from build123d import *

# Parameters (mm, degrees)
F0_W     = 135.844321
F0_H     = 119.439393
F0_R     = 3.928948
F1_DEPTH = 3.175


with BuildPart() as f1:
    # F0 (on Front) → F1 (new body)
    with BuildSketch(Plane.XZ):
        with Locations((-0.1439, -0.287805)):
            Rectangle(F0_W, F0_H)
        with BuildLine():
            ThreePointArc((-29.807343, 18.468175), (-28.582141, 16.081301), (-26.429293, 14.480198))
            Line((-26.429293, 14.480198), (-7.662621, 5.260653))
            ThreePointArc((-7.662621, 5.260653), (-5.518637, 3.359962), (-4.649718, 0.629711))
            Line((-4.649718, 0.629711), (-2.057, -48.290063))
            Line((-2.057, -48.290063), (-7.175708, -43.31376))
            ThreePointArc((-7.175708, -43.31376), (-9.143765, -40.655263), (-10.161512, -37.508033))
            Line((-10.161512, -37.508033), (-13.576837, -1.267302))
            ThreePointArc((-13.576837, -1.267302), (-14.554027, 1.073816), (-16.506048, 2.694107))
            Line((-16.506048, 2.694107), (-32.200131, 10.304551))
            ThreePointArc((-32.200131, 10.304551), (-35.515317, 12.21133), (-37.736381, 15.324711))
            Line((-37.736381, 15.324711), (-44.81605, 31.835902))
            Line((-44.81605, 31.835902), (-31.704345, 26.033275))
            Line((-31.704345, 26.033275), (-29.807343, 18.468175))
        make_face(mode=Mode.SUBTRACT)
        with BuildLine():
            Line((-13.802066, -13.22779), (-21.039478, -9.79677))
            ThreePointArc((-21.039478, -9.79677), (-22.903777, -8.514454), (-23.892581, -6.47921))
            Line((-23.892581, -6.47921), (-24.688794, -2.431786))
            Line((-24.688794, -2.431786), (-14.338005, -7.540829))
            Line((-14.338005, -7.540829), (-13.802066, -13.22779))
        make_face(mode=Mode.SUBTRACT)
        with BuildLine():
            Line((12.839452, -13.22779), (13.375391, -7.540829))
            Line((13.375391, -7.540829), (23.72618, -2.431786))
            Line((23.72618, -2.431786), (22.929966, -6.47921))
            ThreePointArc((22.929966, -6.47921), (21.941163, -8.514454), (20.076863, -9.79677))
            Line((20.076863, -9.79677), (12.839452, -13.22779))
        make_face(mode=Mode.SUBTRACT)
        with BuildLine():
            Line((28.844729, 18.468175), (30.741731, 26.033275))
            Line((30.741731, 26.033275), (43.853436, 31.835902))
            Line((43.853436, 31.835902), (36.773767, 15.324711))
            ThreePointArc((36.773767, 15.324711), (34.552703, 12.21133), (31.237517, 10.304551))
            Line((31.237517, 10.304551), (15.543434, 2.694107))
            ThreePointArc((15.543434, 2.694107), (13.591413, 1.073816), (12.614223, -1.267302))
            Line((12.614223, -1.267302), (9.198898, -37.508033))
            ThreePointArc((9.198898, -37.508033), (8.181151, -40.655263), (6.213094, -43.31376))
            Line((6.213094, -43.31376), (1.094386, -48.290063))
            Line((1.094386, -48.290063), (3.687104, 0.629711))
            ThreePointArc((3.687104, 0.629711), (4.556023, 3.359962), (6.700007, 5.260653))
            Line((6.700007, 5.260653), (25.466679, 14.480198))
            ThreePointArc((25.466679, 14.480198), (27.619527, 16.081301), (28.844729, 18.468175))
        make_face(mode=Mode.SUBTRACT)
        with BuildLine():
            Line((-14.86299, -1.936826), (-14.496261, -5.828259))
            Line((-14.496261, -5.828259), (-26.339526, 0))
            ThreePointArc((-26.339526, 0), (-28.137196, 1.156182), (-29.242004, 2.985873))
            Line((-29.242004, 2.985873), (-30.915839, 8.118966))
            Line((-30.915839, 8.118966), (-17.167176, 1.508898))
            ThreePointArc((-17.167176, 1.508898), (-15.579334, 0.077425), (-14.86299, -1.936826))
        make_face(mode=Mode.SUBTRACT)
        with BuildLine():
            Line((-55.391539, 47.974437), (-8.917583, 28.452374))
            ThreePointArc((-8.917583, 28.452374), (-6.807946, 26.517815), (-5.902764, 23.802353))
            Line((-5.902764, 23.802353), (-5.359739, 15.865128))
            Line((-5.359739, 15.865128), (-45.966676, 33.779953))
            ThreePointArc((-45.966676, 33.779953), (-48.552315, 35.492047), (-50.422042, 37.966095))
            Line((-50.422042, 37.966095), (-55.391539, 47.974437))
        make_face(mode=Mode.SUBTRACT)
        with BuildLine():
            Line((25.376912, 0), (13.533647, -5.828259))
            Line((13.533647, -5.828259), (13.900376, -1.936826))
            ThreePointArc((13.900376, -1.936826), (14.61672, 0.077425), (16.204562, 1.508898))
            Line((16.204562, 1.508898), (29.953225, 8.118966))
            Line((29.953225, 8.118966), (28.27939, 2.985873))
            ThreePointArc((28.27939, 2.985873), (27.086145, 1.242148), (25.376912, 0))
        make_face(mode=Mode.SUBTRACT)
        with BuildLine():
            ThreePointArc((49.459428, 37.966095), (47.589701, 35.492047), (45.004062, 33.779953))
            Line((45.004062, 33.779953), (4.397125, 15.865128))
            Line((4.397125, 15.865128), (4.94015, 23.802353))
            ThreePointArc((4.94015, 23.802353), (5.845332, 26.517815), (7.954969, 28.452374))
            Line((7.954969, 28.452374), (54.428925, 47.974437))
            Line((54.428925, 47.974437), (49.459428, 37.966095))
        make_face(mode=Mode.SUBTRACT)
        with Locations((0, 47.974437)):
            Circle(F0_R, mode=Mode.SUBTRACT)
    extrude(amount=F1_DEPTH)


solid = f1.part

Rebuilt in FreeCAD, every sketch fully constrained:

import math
import FreeCAD as App
import Part
import Sketcher

V = App.Vector
Q = App.Units.Quantity


def add_polygon(sketch, points):
    """Adds a closed chain of lines whose ends are joined by coincident constraints."""
    first, n = sketch.GeometryCount, len(points)
    for a, b in zip(points, points[1:] + points[:1]):
        sketch.addGeometry(Part.LineSegment(App.Vector(*a, 0), App.Vector(*b, 0)), False)
    for i in range(n):
        sketch.addConstraint(Sketcher.Constraint("Coincident", first + i, 2, first + (i + 1) % n, 1))

doc = App.newDocument("Part")
body = doc.addObject("PartDesign::Body", "Body")

sketch1 = body.newObject("Sketcher::SketchObject", "Sketch")
sketch1.AttachmentSupport = (doc.getObject("XZ_Plane"), [""])
sketch1.MapMode = "FlatFace"
add_polygon(sketch1, [(-68.066061, 59.431891), (-68.066061, -60.007501), (67.778261, -60.007501), (67.778261, 59.431891)])
sketch1.addGeometry(Part.LineSegment(V(-31.704345, 26.033275, 0), V(-29.807343, 18.468175, 0)), False)
sketch1.addGeometry(Part.ArcOfCircle(Part.Circle(V(-24.064124, 19.908326, 0), V(0, 0, 1), 5.921031), math.radians(-165.922951), math.radians(-113.543944)), False)
sketch1.addGeometry(Part.LineSegment(V(-26.429293, 14.480198, 0), V(-7.662621, 5.260653, 0)), False)
sketch1.addGeometry(Part.ArcOfCircle(Part.Circle(V(-10.042214, 0.416911, 0), V(0, 0, 1), 5.396693), math.radians(2.259846), math.radians(63.836421)), False)
sketch1.addGeometry(Part.LineSegment(V(-4.649718, 0.629711, 0), V(-2.057, -48.290063, 0)), False)
sketch1.addGeometry(Part.LineSegment(V(-2.057, -48.290063, 0), V(-7.175708, -43.31376, 0)), False)
sketch1.addGeometry(Part.ArcOfCircle(Part.Circle(V(-0.038966, -35.972791, 0), V(0, 0, 1), 10.238306), math.radians(-171.375928), math.radians(-134.191825)), False)
sketch1.addGeometry(Part.LineSegment(V(-10.161512, -37.508033, 0), V(-13.576837, -1.267302, 0)), False)
sketch1.addGeometry(Part.ArcOfCircle(Part.Circle(V(-18.822215, -2.082239, 0), V(0, 0, 1), 5.308306), math.radians(8.831036), math.radians(64.130122)), False)
sketch1.addGeometry(Part.LineSegment(V(-16.506048, 2.694107, 0), V(-32.200131, 10.304551, 0)), False)
sketch1.addGeometry(Part.ArcOfCircle(Part.Circle(V(-29.483288, 18.863473, 0), V(0, 0, 1), 8.979777), math.radians(-156.791309), math.radians(-107.610907)), False)
sketch1.addGeometry(Part.LineSegment(V(-37.736381, 15.324711, 0), V(-44.81605, 31.835902, 0)), False)
sketch1.addGeometry(Part.LineSegment(V(-44.81605, 31.835902, 0), V(-31.704345, 26.033275, 0)), False)
sketch1.addGeometry(Part.LineSegment(V(-14.338005, -7.540829, 0), V(-13.802066, -13.22779, 0)), False)
sketch1.addGeometry(Part.LineSegment(V(-13.802066, -13.22779, 0), V(-21.039478, -9.79677, 0)), False)
sketch1.addGeometry(Part.ArcOfCircle(Part.Circle(V(-19.542055, -5.623371, 0), V(0, 0, 1), 4.433908), math.radians(-168.870835), math.radians(-109.738075)), False)
sketch1.addGeometry(Part.LineSegment(V(-23.892581, -6.47921, 0), V(-24.688794, -2.431786, 0)), False)
sketch1.addGeometry(Part.LineSegment(V(-24.688794, -2.431786, 0), V(-14.338005, -7.540829, 0)), False)
sketch1.addGeometry(Part.ArcOfCircle(Part.Circle(V(-19.20313, -2.345839, 0), V(0, 0, 1), 4.35937), math.radians(5.383635), math.radians(62.158356)), False)
sketch1.addGeometry(Part.LineSegment(V(-14.86299, -1.936826, 0), V(-14.496261, -5.828259, 0)), False)
sketch1.addGeometry(Part.LineSegment(V(-14.496261, -5.828259, 0), V(-26.339526, 0, 0)), False)
sketch1.addGeometry(Part.ArcOfCircle(Part.Circle(V(-24.747089, 4.451603, 0), V(0, 0, 1), 4.727856), math.radians(-161.939564), math.radians(-109.683255)), False)
sketch1.addGeometry(Part.LineSegment(V(-29.242004, 2.985873, 0), V(-30.915839, 8.118966, 0)), False)
sketch1.addGeometry(Part.LineSegment(V(-30.915839, 8.118966, 0), V(-17.167176, 1.508898, 0)), False)
sketch1.addGeometry(Part.LineSegment(V(20.076863, -9.79677, 0), V(12.839452, -13.22779, 0)), False)
sketch1.addGeometry(Part.LineSegment(V(12.839452, -13.22779, 0), V(13.375391, -7.540829, 0)), False)
sketch1.addGeometry(Part.LineSegment(V(13.375391, -7.540829, 0), V(23.72618, -2.431786, 0)), False)
sketch1.addGeometry(Part.LineSegment(V(23.72618, -2.431786, 0), V(22.929966, -6.47921, 0)), False)
sketch1.addGeometry(Part.ArcOfCircle(Part.Circle(V(18.579444, -5.623375, 0), V(0, 0, 1), 4.433903), math.radians(-70.261962), math.radians(-11.129128)), False)
sketch1.addGeometry(Part.ArcOfCircle(Part.Circle(V(23.10151, 19.908326, 0), V(0, 0, 1), 5.921031), math.radians(-66.456056), math.radians(-14.077049)), False)
sketch1.addGeometry(Part.LineSegment(V(28.844729, 18.468175, 0), V(30.741731, 26.033275, 0)), False)
sketch1.addGeometry(Part.LineSegment(V(30.741731, 26.033275, 0), V(43.853436, 31.835902, 0)), False)
sketch1.addGeometry(Part.LineSegment(V(43.853436, 31.835902, 0), V(36.773767, 15.324711, 0)), False)
sketch1.addGeometry(Part.ArcOfCircle(Part.Circle(V(28.520674, 18.863473, 0), V(0, 0, 1), 8.979777), math.radians(-72.389093), math.radians(-23.208691)), False)
sketch1.addGeometry(Part.LineSegment(V(31.237517, 10.304551, 0), V(15.543434, 2.694107, 0)), False)
sketch1.addGeometry(Part.ArcOfCircle(Part.Circle(V(17.859601, -2.082239, 0), V(0, 0, 1), 5.308306), math.radians(115.869878), math.radians(171.168964)), False)
sketch1.addGeometry(Part.LineSegment(V(12.614223, -1.267302, 0), V(9.198898, -37.508033, 0)), False)
sketch1.addGeometry(Part.ArcOfCircle(Part.Circle(V(-0.923648, -35.972791, 0), V(0, 0, 1), 10.238306), math.radians(-45.808175), math.radians(-8.624072)), False)
sketch1.addGeometry(Part.LineSegment(V(6.213094, -43.31376, 0), V(1.094386, -48.290063, 0)), False)
sketch1.addGeometry(Part.LineSegment(V(1.094386, -48.290063, 0), V(3.687104, 0.629711, 0)), False)
sketch1.addGeometry(Part.ArcOfCircle(Part.Circle(V(9.0796, 0.416911, 0), V(0, 0, 1), 5.396693), math.radians(116.163579), math.radians(177.740154)), False)
sketch1.addGeometry(Part.LineSegment(V(6.700007, 5.260653, 0), V(25.466679, 14.480198, 0)), False)
sketch1.addGeometry(Part.ArcOfCircle(Part.Circle(V(22.637555, 5.56649, 0), V(0, 0, 1), 6.204022), math.radians(-63.797475), math.radians(-24.579706)), False)
sketch1.addGeometry(Part.LineSegment(V(25.376912, 0, 0), V(13.533647, -5.828259, 0)), False)
sketch1.addGeometry(Part.LineSegment(V(13.533647, -5.828259, 0), V(13.900376, -1.936826, 0)), False)
sketch1.addGeometry(Part.ArcOfCircle(Part.Circle(V(18.240516, -2.345839, 0), V(0, 0, 1), 4.35937), math.radians(117.841644), math.radians(174.616365)), False)
sketch1.addGeometry(Part.LineSegment(V(16.204562, 1.508898, 0), V(29.953225, 8.118966, 0)), False)
sketch1.addGeometry(Part.LineSegment(V(29.953225, 8.118966, 0), V(28.27939, 2.985873, 0)), False)
sketch1.addGeometry(Part.LineSegment(V(-50.422042, 37.966095, 0), V(-55.391539, 47.974437, 0)), False)
sketch1.addGeometry(Part.LineSegment(V(-55.391539, 47.974437, 0), V(-8.917583, 28.452374, 0)), False)
sketch1.addGeometry(Part.ArcOfCircle(Part.Circle(V(-11.597125, 23.412773, 0), V(0, 0, 1), 5.707672), math.radians(3.913793), math.radians(62.00054)), False)
sketch1.addGeometry(Part.LineSegment(V(-5.902764, 23.802353, 0), V(-5.359739, 15.865128, 0)), False)
sketch1.addGeometry(Part.LineSegment(V(-5.359739, 15.865128, 0), V(-45.966676, 33.779953, 0)), False)
sketch1.addGeometry(Part.ArcOfCircle(Part.Circle(V(-42.253942, 42.195487, 0), V(0, 0, 1), 9.198131), math.radians(-152.625153), math.radians(-113.805931)), False)
sketch1.addGeometry(Part.Circle(V(0, 47.974437, 0), V(0, 0, 1), 3.928948), False)
sketch1.addGeometry(Part.LineSegment(V(54.428925, 47.974437, 0), V(49.459428, 37.966095, 0)), False)
sketch1.addGeometry(Part.ArcOfCircle(Part.Circle(V(41.291328, 42.195487, 0), V(0, 0, 1), 9.198131), math.radians(-66.194069), math.radians(-27.374847)), False)
sketch1.addGeometry(Part.LineSegment(V(45.004062, 33.779953, 0), V(4.397125, 15.865128, 0)), False)
sketch1.addGeometry(Part.LineSegment(V(4.397125, 15.865128, 0), V(4.94015, 23.802353, 0)), False)
sketch1.addGeometry(Part.ArcOfCircle(Part.Circle(V(10.634511, 23.412773, 0), V(0, 0, 1), 5.707672), math.radians(117.99946), math.radians(176.086207)), False)
sketch1.addGeometry(Part.LineSegment(V(7.954969, 28.452374, 0), V(54.428925, 47.974437, 0)), False)
sketch1.addConstraint([
    Sketcher.Constraint("Coincident", 4, 2, 5, 1),
    Sketcher.Constraint("Coincident", 5, 2, 6, 1),
    Sketcher.Constraint("Coincident", 6, 2, 7, 2),
    Sketcher.Constraint("Coincident", 7, 1, 8, 1),
    Sketcher.Constraint("Coincident", 8, 2, 9, 1),
    Sketcher.Constraint("Coincident", 9, 2, 10, 2),
    Sketcher.Constraint("Coincident", 10, 1, 11, 1),
    Sketcher.Constraint("Coincident", 11, 2, 12, 1),
    Sketcher.Constraint("Coincident", 12, 2, 13, 1),
    Sketcher.Constraint("Coincident", 13, 2, 14, 2),
    Sketcher.Constraint("Coincident", 14, 1, 15, 1),
    Sketcher.Constraint("Coincident", 15, 2, 16, 1),
    Sketcher.Constraint("Coincident", 16, 2, 4, 1),
    Sketcher.Constraint("Coincident", 17, 2, 18, 1),
    Sketcher.Constraint("Coincident", 18, 2, 19, 2),
    Sketcher.Constraint("Coincident", 19, 1, 20, 1),
    Sketcher.Constraint("Coincident", 20, 2, 21, 1),
    Sketcher.Constraint("Coincident", 21, 2, 17, 1),
    Sketcher.Constraint("Coincident", 22, 1, 23, 1),
    Sketcher.Constraint("Coincident", 23, 2, 24, 1),
    Sketcher.Constraint("Coincident", 24, 2, 25, 2),
    Sketcher.Constraint("Coincident", 25, 1, 26, 1),
    Sketcher.Constraint("Coincident", 26, 2, 27, 1),
    Sketcher.Constraint("Coincident", 27, 2, 22, 2),
    Sketcher.Constraint("Coincident", 28, 2, 29, 1),
    Sketcher.Constraint("Coincident", 29, 2, 30, 1),
    Sketcher.Constraint("Coincident", 30, 2, 31, 1),
    Sketcher.Constraint("Coincident", 31, 2, 32, 2),
    Sketcher.Constraint("Coincident", 32, 1, 28, 1),
    Sketcher.Constraint("Coincident", 33, 2, 34, 1),
    Sketcher.Constraint("Coincident", 34, 2, 35, 1),
    Sketcher.Constraint("Coincident", 35, 2, 36, 1),
    Sketcher.Constraint("Coincident", 36, 2, 37, 2),
    Sketcher.Constraint("Coincident", 37, 1, 38, 1),
    Sketcher.Constraint("Coincident", 38, 2, 39, 1),
    Sketcher.Constraint("Coincident", 39, 2, 40, 1),
    Sketcher.Constraint("Coincident", 40, 2, 41, 2),
    Sketcher.Constraint("Coincident", 41, 1, 42, 1),
    Sketcher.Constraint("Coincident", 42, 2, 43, 1),
    Sketcher.Constraint("Coincident", 43, 2, 44, 2),
    Sketcher.Constraint("Coincident", 44, 1, 45, 1),
    Sketcher.Constraint("Coincident", 45, 2, 33, 1),
    Sketcher.Constraint("Coincident", 46, 1, 47, 1),
    Sketcher.Constraint("Coincident", 47, 2, 48, 1),
    Sketcher.Constraint("Coincident", 48, 2, 49, 2),
    Sketcher.Constraint("Coincident", 49, 1, 50, 1),
    Sketcher.Constraint("Coincident", 50, 2, 51, 1),
    Sketcher.Constraint("Coincident", 51, 2, 46, 2),
    Sketcher.Constraint("Coincident", 52, 2, 53, 1),
    Sketcher.Constraint("Coincident", 53, 2, 54, 2),
    Sketcher.Constraint("Coincident", 54, 1, 55, 1),
    Sketcher.Constraint("Coincident", 55, 2, 56, 1),
    Sketcher.Constraint("Coincident", 56, 2, 57, 2),
    Sketcher.Constraint("Coincident", 57, 1, 52, 1),
    Sketcher.Constraint("Coincident", 59, 2, 60, 2),
    Sketcher.Constraint("Coincident", 60, 1, 61, 1),
    Sketcher.Constraint("Coincident", 61, 2, 62, 1),
    Sketcher.Constraint("Coincident", 62, 2, 63, 2),
    Sketcher.Constraint("Coincident", 63, 1, 64, 1),
    Sketcher.Constraint("Coincident", 64, 2, 59, 1),
    Sketcher.Constraint("Vertical", 0),
    Sketcher.Constraint("Horizontal", 1),
    Sketcher.Constraint("Vertical", 2),
    Sketcher.Constraint("Horizontal", 3),
    Sketcher.Constraint("PointOnObject", 58, 3, -2),
    Sketcher.Constraint("PointOnObject", 24, 2, -1),
    Sketcher.Constraint("PointOnObject", 46, 1, -1),
    Sketcher.Constraint("Radius", 5, Q("5.921031 mm")),
    Sketcher.Constraint("Radius", 22, Q("4.35937 mm")),
    Sketcher.Constraint("Radius", 33, Q("5.921031 mm")),
    Sketcher.Constraint("Radius", 49, Q("4.35937 mm")),
    Sketcher.Constraint("Radius", 57, Q("9.198131 mm")),
    Sketcher.Constraint("Radius", 60, Q("9.198131 mm")),
    Sketcher.Constraint("Diameter", 58, Q("7.857896 mm")),
    Sketcher.Constraint("DistanceY", 0, 2, -1, 1, Q("2.3625001 in")),
    Sketcher.Constraint("Radius", 7, Q("5.396693 mm")),
    Sketcher.Constraint("Radius", 10, Q("10.238306 mm")),
    Sketcher.Constraint("Radius", 12, Q("5.308306 mm")),
    Sketcher.Constraint("Radius", 14, Q("8.979777 mm")),
    Sketcher.Constraint("Radius", 19, Q("4.433908 mm")),
    Sketcher.Constraint("Radius", 25, Q("4.727856 mm")),
    Sketcher.Constraint("Radius", 32, Q("4.433903 mm")),
    Sketcher.Constraint("Radius", 37, Q("8.979777 mm")),
    Sketcher.Constraint("Radius", 39, Q("5.308306 mm")),
    Sketcher.Constraint("Radius", 41, Q("10.238306 mm")),
    Sketcher.Constraint("Radius", 44, Q("5.396693 mm")),
    Sketcher.Constraint("Radius", 46, Q("6.204022 mm")),
    Sketcher.Constraint("Radius", 54, Q("5.707672 mm")),
    Sketcher.Constraint("Radius", 63, Q("5.707672 mm")),
    Sketcher.Constraint("DistanceX", 1, 1, 1, 2, Q("135.844321 mm")),
    Sketcher.Constraint("DistanceX", -1, 1, 39, 3, Q("17.859601 mm")),
    Sketcher.Constraint("DistanceX", -1, 1, 44, 3, Q("9.0796 mm")),
    Sketcher.Constraint("DistanceY", -1, 1, 5, 2, Q("14.480198 mm")),
    Sketcher.Constraint("DistanceX", 8, 2, -1, 1, Q("2.057 mm")),
    Sketcher.Constraint("DistanceY", 11, 2, -1, 1, Q("1.267302 mm")),
    Sketcher.Constraint("DistanceY", -1, 1, 27, 2, Q("1.508898 mm")),
    Sketcher.Constraint("Distance", 6, Q("20.909041 mm")),
    Sketcher.Constraint("Distance", 9, Q("7.138961 mm")),
    Sketcher.Constraint("Distance", 17, Q("5.712159 mm")),
    Sketcher.Constraint("Distance", 24, Q("13.199679 mm")),
    Sketcher.Constraint("Distance", 26, Q("5.399108 mm")),
    Sketcher.Constraint("Distance", 27, Q("15.255122 mm")),
    Sketcher.Constraint("Distance", 29, Q("5.712159 mm")),
    Sketcher.Constraint("Distance", 42, Q("7.138961 mm")),
    Sketcher.Constraint("Distance", 45, Q("20.909041 mm")),
    Sketcher.Constraint("Distance", 47, Q("13.199679 mm")),
    Sketcher.Constraint("Distance", 50, Q("15.255122 mm")),
    Sketcher.Constraint("Distance", 51, Q("5.399108 mm")),
    Sketcher.Constraint("Distance", 55, Q("7.955779 mm")),
    Sketcher.Constraint("Distance", 62, Q("7.955779 mm")),
    Sketcher.Constraint("DistanceY", 0, 2, 0, 1, Q("119.439393 mm")),
    Sketcher.Constraint("DistanceY", -1, 1, 7, 3, Q("0.416911 mm")),
    Sketcher.Constraint("DistanceY", 10, 3, -1, 1, Q("35.972791 mm")),
    Sketcher.Constraint("DistanceY", 12, 3, -1, 1, Q("2.082239 mm")),
    Sketcher.Constraint("DistanceY", 19, 3, -1, 1, Q("5.623371 mm")),
    Sketcher.Constraint("DistanceX", 22, 3, -1, 1, Q("19.20313 mm")),
    Sketcher.Constraint("DistanceY", 22, 3, -1, 1, Q("2.345839 mm")),
    Sketcher.Constraint("DistanceX", 25, 3, -1, 1, Q("24.747089 mm")),
    Sketcher.Constraint("DistanceX", -1, 1, 33, 3, Q("23.10151 mm")),
    Sketcher.Constraint("DistanceY", 39, 3, -1, 1, Q("2.082239 mm")),
    Sketcher.Constraint("DistanceX", 41, 3, -1, 1, Q("0.923648 mm")),
    Sketcher.Constraint("DistanceY", 41, 3, -1, 1, Q("35.972791 mm")),
    Sketcher.Constraint("DistanceY", -1, 1, 44, 3, Q("0.416911 mm")),
    Sketcher.Constraint("DistanceY", -1, 1, 46, 3, Q("5.56649 mm")),
    Sketcher.Constraint("DistanceY", 49, 3, -1, 1, Q("2.345839 mm")),
    Sketcher.Constraint("DistanceX", -1, 1, 60, 3, Q("41.291328 mm")),
    Sketcher.Constraint("DistanceX", -1, 1, 63, 3, Q("10.634511 mm")),
    Sketcher.Constraint("DistanceX", 0, 2, -1, 1, Q("68.066061 mm")),
    Sketcher.Constraint("DistanceX", 6, 2, -1, 1, Q("7.662621 mm")),
    Sketcher.Constraint("DistanceY", -1, 1, 7, 1, Q("0.629711 mm")),
    Sketcher.Constraint("DistanceX", 9, 2, -1, 1, Q("7.175708 mm")),
    Sketcher.Constraint("DistanceY", 9, 2, -1, 1, Q("43.31376 mm")),
    Sketcher.Constraint("DistanceX", 12, 2, -1, 1, Q("16.506048 mm")),
    Sketcher.Constraint("DistanceX", 13, 2, -1, 1, Q("32.200131 mm")),
    Sketcher.Constraint("DistanceY", -1, 1, 13, 2, Q("10.304551 mm")),
    Sketcher.Constraint("DistanceX", 14, 1, -1, 1, Q("37.736381 mm")),
    Sketcher.Constraint("DistanceY", -1, 1, 14, 1, Q("15.324711 mm")),
    Sketcher.Constraint("DistanceX", 15, 2, -1, 1, Q("44.81605 mm")),
    Sketcher.Constraint("DistanceY", 17, 2, -1, 1, Q("13.22779 mm")),
    Sketcher.Constraint("DistanceY", 18, 2, -1, 1, Q("9.79677 mm")),
    Sketcher.Constraint("DistanceX", 19, 1, -1, 1, Q("23.892581 mm")),
    Sketcher.Constraint("DistanceY", 19, 1, -1, 1, Q("6.47921 mm")),
    Sketcher.Constraint("DistanceY", 21, 2, -1, 1, Q("7.540829 mm")),
    Sketcher.Constraint("DistanceX", 22, 1, -1, 1, Q("14.86299 mm")),
    Sketcher.Constraint("DistanceX", 23, 2, -1, 1, Q("14.496261 mm")),
    Sketcher.Constraint("DistanceY", 23, 2, -1, 1, Q("5.828259 mm")),
    Sketcher.Constraint("DistanceX", 26, 2, -1, 1, Q("30.915839 mm")),
    Sketcher.Constraint("DistanceY", 28, 2, -1, 1, Q("13.22779 mm")),
    Sketcher.Constraint("DistanceX", -1, 1, 29, 2, Q("13.375391 mm")),
    Sketcher.Constraint("DistanceY", 29, 2, -1, 1, Q("7.540829 mm")),
    Sketcher.Constraint("DistanceX", -1, 1, 30, 2, Q("23.72618 mm")),
    Sketcher.Constraint("DistanceY", 31, 2, -1, 1, Q("6.47921 mm")),
    Sketcher.Constraint("DistanceY", 32, 1, -1, 1, Q("9.79677 mm")),
    Sketcher.Constraint("DistanceX", -1, 1, 33, 2, Q("28.844729 mm")),
    Sketcher.Constraint("DistanceX", -1, 1, 34, 2, Q("30.741731 mm")),
    Sketcher.Constraint("DistanceY", -1, 1, 36, 2, Q("15.324711 mm")),
    Sketcher.Constraint("DistanceY", -1, 1, 37, 1, Q("10.304551 mm")),
    Sketcher.Constraint("DistanceY", 41, 1, -1, 1, Q("43.31376 mm")),
    Sketcher.Constraint("DistanceY", -1, 1, 43, 2, Q("0.629711 mm")),
    Sketcher.Constraint("DistanceX", -1, 1, 45, 2, Q("25.466679 mm")),
    Sketcher.Constraint("DistanceX", -1, 1, 46, 1, Q("25.376912 mm")),
    Sketcher.Constraint("DistanceY", 47, 2, -1, 1, Q("5.828259 mm")),
    Sketcher.Constraint("DistanceX", -1, 1, 51, 2, Q("28.27939 mm")),
    Sketcher.Constraint("DistanceX", 52, 2, -1, 1, Q("55.391539 mm")),
    Sketcher.Constraint("DistanceX", 55, 2, -1, 1, Q("5.359739 mm")),
    Sketcher.Constraint("DistanceX", -1, 1, 59, 2, Q("49.459428 mm")),
    Sketcher.Constraint("DistanceX", -1, 1, 60, 1, Q("45.004062 mm")),
    Sketcher.Constraint("DistanceX", -1, 1, 62, 2, Q("4.94015 mm")),
    Sketcher.Constraint("DistanceX", -1, 1, 63, 1, Q("7.954969 mm")),
    Sketcher.Constraint("Distance", 4, Q("7.799318 mm")),
    Sketcher.Constraint("Distance", 8, Q("48.988432 mm")),
    Sketcher.Constraint("Distance", 11, Q("36.401305 mm")),
    Sketcher.Constraint("Distance", 13, Q("17.441992 mm")),
    Sketcher.Constraint("Distance", 15, Q("17.964998 mm")),
    Sketcher.Constraint("Distance", 16, Q("14.338315 mm")),
    Sketcher.Constraint("Distance", 18, Q("8.009496 mm")),
    Sketcher.Constraint("Distance", 20, Q("4.124997 mm")),
    Sketcher.Constraint("Distance", 21, Q("11.543013 mm")),
    Sketcher.Constraint("Distance", 28, Q("8.009495 mm")),
    Sketcher.Constraint("Distance", 30, Q("11.543013 mm")),
    Sketcher.Constraint("Distance", 31, Q("4.124997 mm")),
    Sketcher.Constraint("Distance", 34, Q("7.799318 mm")),
    Sketcher.Constraint("Distance", 35, Q("14.338315 mm")),
    Sketcher.Constraint("Distance", 36, Q("17.964998 mm")),
    Sketcher.Constraint("Distance", 38, Q("17.441992 mm")),
    Sketcher.Constraint("Distance", 40, Q("36.401305 mm")),
    Sketcher.Constraint("Distance", 43, Q("48.988432 mm")),
    Sketcher.Constraint("Distance", 48, Q("3.908675 mm")),
    Sketcher.Constraint("Distance", 52, Q("11.174203 mm")),
    Sketcher.Constraint("Distance", 53, Q("50.407733 mm")),
    Sketcher.Constraint("Distance", 56, Q("44.383153 mm")),
    Sketcher.Constraint("Distance", 59, Q("11.174203 mm")),
    Sketcher.Constraint("Distance", 61, Q("44.383153 mm")),
    Sketcher.Constraint("Distance", 64, Q("50.407733 mm")),
    Sketcher.Constraint("DistanceX", 5, 3, -1, 1, Q("24.064124 mm")),
    Sketcher.Constraint("DistanceY", -1, 1, 33, 3, Q("19.908326 mm")),
    Sketcher.Constraint("DistanceX", -1, 1, 37, 3, Q("28.520674 mm")),
    Sketcher.Constraint("DistanceY", -1, 1, 37, 3, Q("18.863473 mm")),
    Sketcher.Constraint("DistanceX", -1, 1, 49, 3, Q("18.240516 mm")),
    Sketcher.Constraint("DistanceX", 54, 3, -1, 1, Q("11.597125 mm")),
    Sketcher.Constraint("DistanceY", -1, 1, 54, 3, Q("23.412773 mm")),
    Sketcher.Constraint("DistanceX", 57, 3, -1, 1, Q("42.253942 mm")),
    Sketcher.Constraint("DistanceY", -1, 1, 57, 3, Q("42.195487 mm")),
    Sketcher.Constraint("DistanceY", -1, 1, 58, 3, Q("47.974437 mm")),
    Sketcher.Constraint("DistanceY", -1, 1, 60, 3, Q("42.195487 mm")),
    Sketcher.Constraint("DistanceY", -1, 1, 63, 3, Q("23.412773 mm")),
    Sketcher.Constraint("DistanceX", 4, 2, -1, 1, Q("29.807343 mm")),
    Sketcher.Constraint("DistanceX", -1, 1, 39, 2, Q("12.614223 mm")),
    Sketcher.Constraint("DistanceX", -1, 1, 49, 1, Q("16.204562 mm")),
    Sketcher.Constraint("DistanceY", -1, 1, 52, 2, Q("47.974437 mm")),
    Sketcher.Constraint("DistanceX", 54, 1, -1, 1, Q("5.902764 mm")),
])
pad1 = body.newObject("PartDesign::Pad", "Pad")
pad1.Profile = sketch1
pad1.Length = Q("0.125 in")

doc.recompute()
